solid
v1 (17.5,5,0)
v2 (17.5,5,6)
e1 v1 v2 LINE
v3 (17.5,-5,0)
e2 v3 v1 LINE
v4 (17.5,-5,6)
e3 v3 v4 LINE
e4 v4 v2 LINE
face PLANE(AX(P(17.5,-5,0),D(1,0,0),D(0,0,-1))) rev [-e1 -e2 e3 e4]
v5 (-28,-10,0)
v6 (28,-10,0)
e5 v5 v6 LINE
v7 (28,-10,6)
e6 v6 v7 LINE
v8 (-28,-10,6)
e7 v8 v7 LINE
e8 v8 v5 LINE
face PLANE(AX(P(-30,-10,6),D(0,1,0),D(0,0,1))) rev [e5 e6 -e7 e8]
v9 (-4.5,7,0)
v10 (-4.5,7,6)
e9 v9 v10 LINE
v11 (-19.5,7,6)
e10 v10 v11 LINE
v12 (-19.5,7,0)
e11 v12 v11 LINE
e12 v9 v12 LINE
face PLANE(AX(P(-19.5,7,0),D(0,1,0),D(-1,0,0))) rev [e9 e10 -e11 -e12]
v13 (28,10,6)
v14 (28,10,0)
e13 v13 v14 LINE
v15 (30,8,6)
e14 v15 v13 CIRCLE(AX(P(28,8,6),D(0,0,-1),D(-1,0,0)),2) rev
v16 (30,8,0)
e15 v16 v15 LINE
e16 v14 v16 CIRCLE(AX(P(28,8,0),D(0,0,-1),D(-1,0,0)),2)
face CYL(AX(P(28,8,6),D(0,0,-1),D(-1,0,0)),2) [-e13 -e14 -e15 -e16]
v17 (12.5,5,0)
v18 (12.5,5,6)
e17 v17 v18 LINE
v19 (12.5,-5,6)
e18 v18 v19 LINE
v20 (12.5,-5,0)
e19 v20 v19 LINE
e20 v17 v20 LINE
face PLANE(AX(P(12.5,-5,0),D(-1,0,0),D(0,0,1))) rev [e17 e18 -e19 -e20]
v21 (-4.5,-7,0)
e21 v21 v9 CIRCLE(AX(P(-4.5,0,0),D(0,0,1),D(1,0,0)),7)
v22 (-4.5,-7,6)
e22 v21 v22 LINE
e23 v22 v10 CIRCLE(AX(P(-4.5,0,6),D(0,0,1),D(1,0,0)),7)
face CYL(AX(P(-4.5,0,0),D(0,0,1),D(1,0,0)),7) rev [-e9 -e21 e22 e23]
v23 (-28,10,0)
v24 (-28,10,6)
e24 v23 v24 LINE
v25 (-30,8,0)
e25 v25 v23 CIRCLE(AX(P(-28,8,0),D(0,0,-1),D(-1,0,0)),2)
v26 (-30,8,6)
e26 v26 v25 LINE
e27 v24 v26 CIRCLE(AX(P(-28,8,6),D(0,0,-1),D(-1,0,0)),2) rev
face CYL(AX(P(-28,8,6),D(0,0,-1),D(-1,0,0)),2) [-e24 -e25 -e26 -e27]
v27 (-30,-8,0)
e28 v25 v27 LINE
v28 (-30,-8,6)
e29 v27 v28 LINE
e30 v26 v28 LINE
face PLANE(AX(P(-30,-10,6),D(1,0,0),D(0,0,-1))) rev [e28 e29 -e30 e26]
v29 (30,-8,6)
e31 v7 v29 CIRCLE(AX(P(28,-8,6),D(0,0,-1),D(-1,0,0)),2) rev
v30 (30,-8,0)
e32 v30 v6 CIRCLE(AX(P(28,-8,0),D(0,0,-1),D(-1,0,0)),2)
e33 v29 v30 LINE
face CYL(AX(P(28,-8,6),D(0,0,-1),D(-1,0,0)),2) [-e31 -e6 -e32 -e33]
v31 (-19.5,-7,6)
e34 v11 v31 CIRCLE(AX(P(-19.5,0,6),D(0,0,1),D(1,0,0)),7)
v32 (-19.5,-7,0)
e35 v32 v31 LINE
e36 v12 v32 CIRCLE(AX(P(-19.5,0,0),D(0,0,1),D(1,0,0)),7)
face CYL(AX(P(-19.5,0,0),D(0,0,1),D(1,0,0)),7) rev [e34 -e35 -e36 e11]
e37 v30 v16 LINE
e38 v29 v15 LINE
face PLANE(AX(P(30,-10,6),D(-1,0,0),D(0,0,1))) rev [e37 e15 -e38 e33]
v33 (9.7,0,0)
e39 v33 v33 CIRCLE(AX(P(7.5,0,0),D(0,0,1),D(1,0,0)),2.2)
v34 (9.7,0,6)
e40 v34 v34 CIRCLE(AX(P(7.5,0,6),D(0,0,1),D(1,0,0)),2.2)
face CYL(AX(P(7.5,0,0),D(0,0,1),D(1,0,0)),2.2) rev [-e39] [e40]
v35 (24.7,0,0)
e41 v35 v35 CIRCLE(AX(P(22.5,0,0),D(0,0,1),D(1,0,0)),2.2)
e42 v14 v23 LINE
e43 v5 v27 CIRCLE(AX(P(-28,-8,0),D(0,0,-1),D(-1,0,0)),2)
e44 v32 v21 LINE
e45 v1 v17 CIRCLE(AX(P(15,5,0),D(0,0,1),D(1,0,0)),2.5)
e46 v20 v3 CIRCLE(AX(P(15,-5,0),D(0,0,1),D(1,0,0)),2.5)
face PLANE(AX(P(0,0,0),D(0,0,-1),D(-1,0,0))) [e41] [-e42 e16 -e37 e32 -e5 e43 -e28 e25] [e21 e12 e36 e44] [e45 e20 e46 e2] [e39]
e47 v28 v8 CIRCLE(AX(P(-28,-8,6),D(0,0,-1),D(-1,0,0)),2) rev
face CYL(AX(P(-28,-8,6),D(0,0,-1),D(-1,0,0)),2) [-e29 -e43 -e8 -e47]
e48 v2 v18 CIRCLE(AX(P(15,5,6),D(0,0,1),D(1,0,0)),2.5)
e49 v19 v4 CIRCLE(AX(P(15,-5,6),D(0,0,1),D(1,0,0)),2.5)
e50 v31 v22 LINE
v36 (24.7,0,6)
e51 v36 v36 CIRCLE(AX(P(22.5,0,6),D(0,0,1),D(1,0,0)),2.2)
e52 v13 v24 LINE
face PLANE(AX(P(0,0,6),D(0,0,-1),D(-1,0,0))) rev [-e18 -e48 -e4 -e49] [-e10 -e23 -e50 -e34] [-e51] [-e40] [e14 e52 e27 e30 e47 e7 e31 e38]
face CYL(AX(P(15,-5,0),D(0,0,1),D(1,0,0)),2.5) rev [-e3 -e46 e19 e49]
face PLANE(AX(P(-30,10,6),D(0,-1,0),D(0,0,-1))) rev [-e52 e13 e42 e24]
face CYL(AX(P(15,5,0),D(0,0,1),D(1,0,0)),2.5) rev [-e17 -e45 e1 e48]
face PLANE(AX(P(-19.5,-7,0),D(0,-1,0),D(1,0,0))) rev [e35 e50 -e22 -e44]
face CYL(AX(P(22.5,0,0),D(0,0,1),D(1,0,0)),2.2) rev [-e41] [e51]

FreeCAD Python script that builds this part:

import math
import FreeCAD as App
import Part
import Sketcher


def edges_at(feature, points):
    """Names of the edges that pass closest to the given points."""
    edges = feature.Shape.Edges
    near = lambda p: min(range(len(edges)), key=lambda i: edges[i].distToShape(Part.Vertex(*p))[0])
    return sorted({f"Edge{near(p) + 1}" for p in points})

doc = App.newDocument("Part")
body = doc.addObject("PartDesign::Body", "Body")

# Sketch on XY plane
sketch1 = body.newObject("Sketcher::SketchObject", "Sketch")
sketch1.AttachmentSupport = (doc.getObject("XY_Plane"), [""])
sketch1.MapMode = "FlatFace"
sketch1.addGeometry(Part.LineSegment(App.Vector(-30, 10, 0), App.Vector(-30, -10, 0)), False)
sketch1.addGeometry(Part.LineSegment(App.Vector(-30, -10, 0), App.Vector(30, -10, 0)), False)
sketch1.addGeometry(Part.LineSegment(App.Vector(30, -10, 0), App.Vector(30, 10, 0)), False)
sketch1.addGeometry(Part.LineSegment(App.Vector(30, 10, 0), App.Vector(-30, 10, 0)), False)
sketch1.addConstraint(Sketcher.Constraint("Coincident", 0, 2, 1, 1))
sketch1.addConstraint(Sketcher.Constraint("Coincident", 1, 2, 2, 1))
sketch1.addConstraint(Sketcher.Constraint("Coincident", 2, 2, 3, 1))
sketch1.addConstraint(Sketcher.Constraint("Coincident", 3, 2, 0, 1))
sketch1.addConstraint(Sketcher.Constraint("Vertical", 0))
sketch1.addConstraint(Sketcher.Constraint("Horizontal", 1))
sketch1.addConstraint(Sketcher.Constraint("Vertical", 2))
sketch1.addConstraint(Sketcher.Constraint("Horizontal", 3))
sketch1.addConstraint(Sketcher.Constraint("Symmetric", 0, 2, 2, 2, -1, 1))
sketch1.addConstraint(Sketcher.Constraint("DistanceX", 1, 1, 1, 2, 60.0))
sketch1.addConstraint(Sketcher.Constraint("DistanceY", 0, 2, 0, 1, 20.0))
pad1 = body.newObject("PartDesign::Pad", "Pad")
pad1.Profile = sketch1
pad1.Length = 6
doc.recompute()

fillet = body.newObject("PartDesign::Fillet", "Fillet")
fillet.Base = (pad1, edges_at(pad1, [
    (30, -10, 3),
    (-30, -10, 3),
    (-30, 10, 3),
    (30, 10, 3),
]))
fillet.Radius = 2

# Sketch on XY plane
sketch2 = body.newObject("Sketcher::SketchObject", "Sketch001")
sketch2.AttachmentSupport = (doc.getObject("XY_Plane"), [""])
sketch2.MapMode = "FlatFace"
sketch2.AttachmentOffset = App.Placement(App.Vector(0, 0, 6), App.Rotation())
sketch2.addGeometry(Part.Circle(App.Vector(22.5, 0, 0), App.Vector(0, 0, 1), 2.2), False)
sketch2.addGeometry(Part.Circle(App.Vector(7.5, 0, 0), App.Vector(0, 0, 1), 2.2), False)
sketch2.addConstraint(Sketcher.Constraint("Equal", 0, 1))
sketch2.addConstraint(Sketcher.Constraint("PointOnObject", 0, 3, -1))
sketch2.addConstraint(Sketcher.Constraint("PointOnObject", 1, 3, -1))
sketch2.addConstraint(Sketcher.Constraint("Diameter", 0, 4.4))
sketch2.addConstraint(Sketcher.Constraint("DistanceX", 1, 3, 0, 3, 15.0))
sketch2.addConstraint(Sketcher.Constraint("DistanceX", -1, 1, 0, 3, 22.5))
pocket1 = body.newObject("PartDesign::Pocket", "Pocket")
pocket1.Profile = sketch2
pocket1.Type = "ThroughAll"

# Sketch on XY plane
sketch3 = body.newObject("Sketcher::SketchObject", "Sketch002")
sketch3.AttachmentSupport = (doc.getObject("XY_Plane"), [""])
sketch3.MapMode = "FlatFace"
sketch3.AttachmentOffset = App.Placement(App.Vector(0, 0, 6), App.Rotation())
sketch3.addGeometry(Part.LineSegment(App.Vector(-4.5, 7, 0), App.Vector(-19.5, 7, 0)), False)
sketch3.addGeometry(Part.ArcOfCircle(Part.Circle(App.Vector(-19.5, 0, 0), App.Vector(0, 0, 1), 7), math.radians(90), math.radians(270)), False)
sketch3.addGeometry(Part.LineSegment(App.Vector(-19.5, -7, 0), App.Vector(-4.5, -7, 0)), False)
sketch3.addGeometry(Part.ArcOfCircle(Part.Circle(App.Vector(-4.5, 0, 0), App.Vector(0, 0, 1), 7), math.radians(-90), math.radians(90)), False)
sketch3.addGeometry(Part.LineSegment(App.Vector(12.5, 5, 0), App.Vector(12.5, -5, 0)), False)
sketch3.addGeometry(Part.ArcOfCircle(Part.Circle(App.Vector(15, -5, 0), App.Vector(0, 0, 1), 2.5), math.radians(180), math.radians(360)), False)
sketch3.addGeometry(Part.LineSegment(App.Vector(17.5, -5, 0), App.Vector(17.5, 5, 0)), False)
sketch3.addGeometry(Part.ArcOfCircle(Part.Circle(App.Vector(15, 5, 0), App.Vector(0, 0, 1), 2.5), math.radians(0), math.radians(180)), False)
sketch3.addConstraint(Sketcher.Constraint("Tangent", 0, 2, 1, 1))
sketch3.addConstraint(Sketcher.Constraint("Tangent", 1, 2, 2, 1))
sketch3.addConstraint(Sketcher.Constraint("Tangent", 2, 2, 3, 1))
sketch3.addConstraint(Sketcher.Constraint("Tangent", 3, 2, 0, 1))
sketch3.addConstraint(Sketcher.Constraint("Tangent", 4, 2, 5, 1))
sketch3.addConstraint(Sketcher.Constraint("Tangent", 5, 2, 6, 1))
sketch3.addConstraint(Sketcher.Constraint("Tangent", 6, 2, 7, 1))
sketch3.addConstraint(Sketcher.Constraint("Tangent", 7, 2, 4, 1))
sketch3.addConstraint(Sketcher.Constraint("Horizontal", 0))
sketch3.addConstraint(Sketcher.Constraint("Horizontal", 2))
sketch3.addConstraint(Sketcher.Constraint("Vertical", 4))
sketch3.addConstraint(Sketcher.Constraint("Vertical", 6))
sketch3.addConstraint(Sketcher.Constraint("PointOnObject", 1, 3, -1))
sketch3.addConstraint(Sketcher.Constraint("Radius", 1, 7.0))
sketch3.addConstraint(Sketcher.Constraint("Radius", 5, 2.5))
sketch3.addConstraint(Sketcher.Constraint("DistanceX", 0, 2, 0, 1, 15.0))
sketch3.addConstraint(Sketcher.Constraint("DistanceY", 4, 2, 4, 1, 10.0))
sketch3.addConstraint(Sketcher.Constraint("DistanceX", -1, 1, 5, 3, 15.0))
sketch3.addConstraint(Sketcher.Constraint("DistanceY", 5, 3, -1, 1, 5.0))
sketch3.addConstraint(Sketcher.Constraint("DistanceX", 2, 2, 4, 2, 17.0))
pocket2 = body.newObject("PartDesign::Pocket", "Pocket001")
pocket2.Profile = sketch3
pocket2.Type = "ThroughAll"

doc.recompute()
